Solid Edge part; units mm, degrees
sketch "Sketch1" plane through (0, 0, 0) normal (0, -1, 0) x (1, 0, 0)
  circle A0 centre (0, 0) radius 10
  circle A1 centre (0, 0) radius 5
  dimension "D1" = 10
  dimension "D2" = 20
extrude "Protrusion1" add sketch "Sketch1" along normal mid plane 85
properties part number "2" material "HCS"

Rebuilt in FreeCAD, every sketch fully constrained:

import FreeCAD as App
import Part
import Sketcher
from FreeCAD import Vector

doc = App.newDocument("Part")
body = doc.addObject("PartDesign::Body", "Body")

sketch1 = body.newObject("Sketcher::SketchObject", "Sketch")
sketch1.AttachmentSupport = (doc.getObject("XZ_Plane"), [""])
sketch1.MapMode = "FlatFace"
sketch1.addGeometry([
    Part.Circle(Vector(0, 0, 0), Vector(0, 0, 1), 10),
    Part.Circle(Vector(0, 0, 0), Vector(0, 0, 1), 5),
], False)
sketch1.addConstraint([
    Sketcher.Constraint("Coincident", 0, 3, -1, 1),
    Sketcher.Constraint("Coincident", 1, 3, -1, 1),
    Sketcher.Constraint("Diameter", 0, 20.0),
    Sketcher.Constraint("Diameter", 1, 10.0),
])
pad1 = body.newObject("PartDesign::Pad", "Pad")
pad1.Profile = sketch1
pad1.Length = 85
pad1.Midplane = True

doc.recompute()
